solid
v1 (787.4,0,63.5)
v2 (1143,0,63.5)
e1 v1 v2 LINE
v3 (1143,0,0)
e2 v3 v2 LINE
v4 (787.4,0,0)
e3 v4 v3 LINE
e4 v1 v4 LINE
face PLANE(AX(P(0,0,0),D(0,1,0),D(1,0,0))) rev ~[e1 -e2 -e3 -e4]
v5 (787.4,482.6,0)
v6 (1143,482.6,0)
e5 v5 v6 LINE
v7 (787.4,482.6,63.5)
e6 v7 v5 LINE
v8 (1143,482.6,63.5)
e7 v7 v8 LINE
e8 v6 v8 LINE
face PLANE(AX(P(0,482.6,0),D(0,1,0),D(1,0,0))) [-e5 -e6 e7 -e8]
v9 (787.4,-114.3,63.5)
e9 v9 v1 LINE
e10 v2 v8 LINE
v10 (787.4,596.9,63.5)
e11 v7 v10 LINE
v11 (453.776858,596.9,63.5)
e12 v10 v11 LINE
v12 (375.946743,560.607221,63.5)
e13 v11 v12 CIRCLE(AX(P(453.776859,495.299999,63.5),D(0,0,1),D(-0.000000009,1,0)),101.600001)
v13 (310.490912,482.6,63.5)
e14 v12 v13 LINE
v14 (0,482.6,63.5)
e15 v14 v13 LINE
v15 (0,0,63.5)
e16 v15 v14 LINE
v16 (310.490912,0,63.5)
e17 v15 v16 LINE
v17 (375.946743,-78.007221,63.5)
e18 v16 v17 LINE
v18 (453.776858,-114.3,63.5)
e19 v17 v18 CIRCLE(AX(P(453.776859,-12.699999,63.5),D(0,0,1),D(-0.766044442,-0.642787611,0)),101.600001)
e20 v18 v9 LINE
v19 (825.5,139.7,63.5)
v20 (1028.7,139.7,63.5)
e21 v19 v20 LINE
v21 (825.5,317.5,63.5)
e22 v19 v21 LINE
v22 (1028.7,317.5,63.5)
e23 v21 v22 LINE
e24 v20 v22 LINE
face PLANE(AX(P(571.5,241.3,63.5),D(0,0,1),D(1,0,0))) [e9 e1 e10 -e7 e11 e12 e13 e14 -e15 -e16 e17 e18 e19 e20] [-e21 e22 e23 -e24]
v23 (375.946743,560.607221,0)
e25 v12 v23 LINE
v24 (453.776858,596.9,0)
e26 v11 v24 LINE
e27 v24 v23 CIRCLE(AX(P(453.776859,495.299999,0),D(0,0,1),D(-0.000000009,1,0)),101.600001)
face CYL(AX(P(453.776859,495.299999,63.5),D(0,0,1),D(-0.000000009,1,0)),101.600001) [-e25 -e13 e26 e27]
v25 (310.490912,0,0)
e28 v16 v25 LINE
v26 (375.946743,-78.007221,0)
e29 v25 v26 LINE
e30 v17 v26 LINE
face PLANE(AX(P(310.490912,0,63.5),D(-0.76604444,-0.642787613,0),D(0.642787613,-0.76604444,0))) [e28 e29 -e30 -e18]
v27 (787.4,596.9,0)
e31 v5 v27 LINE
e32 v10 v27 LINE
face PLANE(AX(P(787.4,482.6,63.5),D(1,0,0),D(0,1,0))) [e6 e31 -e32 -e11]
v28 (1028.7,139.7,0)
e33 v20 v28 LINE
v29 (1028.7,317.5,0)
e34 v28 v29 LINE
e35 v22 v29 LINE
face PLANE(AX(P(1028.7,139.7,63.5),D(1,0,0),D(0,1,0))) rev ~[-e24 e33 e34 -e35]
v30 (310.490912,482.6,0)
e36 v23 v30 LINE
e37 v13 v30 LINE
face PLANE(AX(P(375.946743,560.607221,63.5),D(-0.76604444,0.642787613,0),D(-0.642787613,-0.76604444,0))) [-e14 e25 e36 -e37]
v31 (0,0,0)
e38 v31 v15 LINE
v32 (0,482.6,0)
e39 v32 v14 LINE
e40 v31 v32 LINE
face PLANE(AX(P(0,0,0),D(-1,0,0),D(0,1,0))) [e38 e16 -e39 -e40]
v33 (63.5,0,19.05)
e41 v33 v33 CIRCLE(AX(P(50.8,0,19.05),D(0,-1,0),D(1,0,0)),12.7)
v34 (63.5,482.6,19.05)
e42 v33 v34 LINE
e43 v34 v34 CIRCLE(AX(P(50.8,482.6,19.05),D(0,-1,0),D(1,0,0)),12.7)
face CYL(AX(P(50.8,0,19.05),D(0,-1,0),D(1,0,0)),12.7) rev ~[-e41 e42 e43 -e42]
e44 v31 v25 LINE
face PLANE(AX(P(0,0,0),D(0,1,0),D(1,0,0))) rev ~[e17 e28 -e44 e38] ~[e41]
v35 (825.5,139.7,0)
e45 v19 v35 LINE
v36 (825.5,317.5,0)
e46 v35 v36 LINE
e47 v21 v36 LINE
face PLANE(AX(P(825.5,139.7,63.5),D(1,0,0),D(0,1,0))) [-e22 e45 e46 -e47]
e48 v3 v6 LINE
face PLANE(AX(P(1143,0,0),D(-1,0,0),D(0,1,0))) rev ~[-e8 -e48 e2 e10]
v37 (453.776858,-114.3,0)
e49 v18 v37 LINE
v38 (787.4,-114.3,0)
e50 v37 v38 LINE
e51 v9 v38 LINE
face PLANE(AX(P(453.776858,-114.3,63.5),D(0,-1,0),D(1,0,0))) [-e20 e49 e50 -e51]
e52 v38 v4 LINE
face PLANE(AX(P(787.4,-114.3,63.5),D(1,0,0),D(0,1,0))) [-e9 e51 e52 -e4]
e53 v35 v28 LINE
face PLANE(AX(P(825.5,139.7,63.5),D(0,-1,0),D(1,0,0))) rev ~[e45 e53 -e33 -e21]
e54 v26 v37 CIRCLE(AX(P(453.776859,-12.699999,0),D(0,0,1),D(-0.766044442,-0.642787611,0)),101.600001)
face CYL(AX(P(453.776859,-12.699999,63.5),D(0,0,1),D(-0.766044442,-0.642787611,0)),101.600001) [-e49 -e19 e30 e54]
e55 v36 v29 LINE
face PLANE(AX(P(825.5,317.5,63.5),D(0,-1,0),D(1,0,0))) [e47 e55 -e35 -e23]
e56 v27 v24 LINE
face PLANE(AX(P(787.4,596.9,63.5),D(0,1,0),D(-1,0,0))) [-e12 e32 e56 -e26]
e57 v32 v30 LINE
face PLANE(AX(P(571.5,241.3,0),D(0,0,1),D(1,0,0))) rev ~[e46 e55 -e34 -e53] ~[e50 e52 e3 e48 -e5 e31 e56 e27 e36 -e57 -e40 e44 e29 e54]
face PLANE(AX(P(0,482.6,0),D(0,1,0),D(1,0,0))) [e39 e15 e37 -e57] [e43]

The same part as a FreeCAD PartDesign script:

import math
import FreeCAD as App
import Part
import Sketcher

V = App.Vector
Q = App.Units.Quantity


def add_polygon(sketch, points):
    """Adds a closed chain of lines whose ends are joined by coincident constraints."""
    first, n = sketch.GeometryCount, len(points)
    for a, b in zip(points, points[1:] + points[:1]):
        sketch.addGeometry(Part.LineSegment(App.Vector(*a, 0), App.Vector(*b, 0)), False)
    for i in range(n):
        sketch.addConstraint(Sketcher.Constraint("Coincident", first + i, 2, first + (i + 1) % n, 1))

doc = App.newDocument("Part")
body = doc.addObject("PartDesign::Body", "Body")

sketch1 = body.newObject("Sketcher::SketchObject", "Sketch")
sketch1.AttachmentSupport = (doc.getObject("XY_Plane"), [""])
sketch1.MapMode = "FlatFace"
add_polygon(sketch1, [(0, 483), (0, 0), (1143, 0), (1143, 483)])
sketch1.addConstraint(Sketcher.Constraint("Vertical", 0))
sketch1.addConstraint(Sketcher.Constraint("Horizontal", 1))
sketch1.addConstraint(Sketcher.Constraint("Vertical", 2))
sketch1.addConstraint(Sketcher.Constraint("Horizontal", 3))
sketch1.addConstraint(Sketcher.Constraint("Coincident", 0, 2, -1, 1))
sketch1.addConstraint(Sketcher.Constraint("DistanceX", 1, 1, 1, 2, Q("45 in")))
sketch1.addConstraint(Sketcher.Constraint("DistanceY", 0, 2, 0, 1, Q("19 in")))
pad1 = body.newObject("PartDesign::Pad", "Pad")
pad1.Profile = sketch1
pad1.Length = Q("2.5 in")

sketch2 = body.newObject("Sketcher::SketchObject", "Sketch001")
sketch2.AttachmentSupport = (doc.getObject("XY_Plane"), [""])
sketch2.MapMode = "FlatFace"
sketch2.AttachmentOffset = App.Placement(V(0, 0, 2.5 * 25.4), App.Rotation())
add_polygon(sketch2, [(826, 318), (826, 140), (1029, 140), (1029, 318)])
sketch2.addConstraint(Sketcher.Constraint("Vertical", 0))
sketch2.addConstraint(Sketcher.Constraint("Horizontal", 1))
sketch2.addConstraint(Sketcher.Constraint("Vertical", 2))
sketch2.addConstraint(Sketcher.Constraint("Horizontal", 3))
sketch2.addConstraint(Sketcher.Constraint("DistanceX", 1, 1, 1, 2, Q("8 in")))
sketch2.addConstraint(Sketcher.Constraint("DistanceY", 0, 2, 0, 1, Q("7 in")))
sketch2.addConstraint(Sketcher.Constraint("DistanceX", -1, 1, 0, 2, Q("32.5 in")))
sketch2.addConstraint(Sketcher.Constraint("DistanceY", -1, 1, 0, 2, Q("5.5 in")))
pocket1 = body.newObject("PartDesign::Pocket", "Pocket")
pocket1.Profile = sketch2
pocket1.Length = Q("2.5 in")

sketch3 = body.newObject("Sketcher::SketchObject", "Sketch002")
sketch3.AttachmentSupport = (doc.getObject("XZ_Plane"), [""])
sketch3.MapMode = "FlatFace"
sketch3.addGeometry(Part.Circle(V(51, 19, 0), V(0, 0, 1), 13), False)
sketch3.addConstraint(Sketcher.Constraint("Diameter", 0, Q("1 in")))
sketch3.addConstraint(Sketcher.Constraint("DistanceX", -1, 1, 0, 3, Q("2 in")))
sketch3.addConstraint(Sketcher.Constraint("DistanceY", -1, 1, 0, 3, Q("0.75 in")))
pocket2 = body.newObject("PartDesign::Pocket", "Pocket001")
pocket2.Profile = sketch3
pocket2.Type = "ThroughAll"

sketch4 = body.newObject("Sketcher::SketchObject", "Sketch003")
sketch4.AttachmentSupport = (doc.getObject("XY_Plane"), [""])
sketch4.MapMode = "FlatFace"
sketch4.AttachmentOffset = App.Placement(V(0, 0, 2.5 * 25.4), App.Rotation())
sketch4.addGeometry(Part.LineSegment(V(310, 483, 0), V(787, 483, 0)), False)
sketch4.addGeometry(Part.LineSegment(V(787, 483, 0), V(787, 597, 0)), False)
sketch4.addGeometry(Part.LineSegment(V(787, 597, 0), V(454, 597, 0)), False)
sketch4.addGeometry(Part.ArcOfCircle(Part.Circle(V(454, 495, 0), V(0, 0, 1), 102), math.radians(90), math.radians(140)), False)
sketch4.addGeometry(Part.LineSegment(V(376, 561, 0), V(310, 483, 0)), False)
sketch4.addGeometry(Part.LineSegment(V(787, -114, 0), V(787, 0, 0)), False)
sketch4.addGeometry(Part.LineSegment(V(787, 0, 0), V(310, 0, 0)), False)
sketch4.addGeometry(Part.LineSegment(V(310, 0, 0), V(376, -78, 0)), False)
sketch4.addGeometry(Part.ArcOfCircle(Part.Circle(V(454, -13, 0), V(0, 0, 1), 102), math.radians(-140), math.radians(-90)), False)
sketch4.addGeometry(Part.LineSegment(V(454, -114, 0), V(787, -114, 0)), False)
sketch4.addConstraint(Sketcher.Constraint("Coincident", 0, 2, 1, 1))
sketch4.addConstraint(Sketcher.Constraint("Coincident", 1, 2, 2, 1))
sketch4.addConstraint(Sketcher.Constraint("Tangent", 2, 2, 3, 1))
sketch4.addConstraint(Sketcher.Constraint("Tangent", 3, 2, 4, 1))
sketch4.addConstraint(Sketcher.Constraint("Coincident", 4, 2, 0, 1))
sketch4.addConstraint(Sketcher.Constraint("Coincident", 5, 2, 6, 1))
sketch4.addConstraint(Sketcher.Constraint("Coincident", 6, 2, 7, 1))
sketch4.addConstraint(Sketcher.Constraint("Tangent", 7, 2, 8, 1))
sketch4.addConstraint(Sketcher.Constraint("Tangent", 8, 2, 9, 1))
sketch4.addConstraint(Sketcher.Constraint("Coincident", 9, 2, 5, 1))
sketch4.addConstraint(Sketcher.Constraint("Horizontal", 0))
sketch4.addConstraint(Sketcher.Constraint("Vertical", 1))
sketch4.addConstraint(Sketcher.Constraint("Horizontal", 2))
sketch4.addConstraint(Sketcher.Constraint("Vertical", 5))
sketch4.addConstraint(Sketcher.Constraint("Horizontal", 6))
sketch4.addConstraint(Sketcher.Constraint("Horizontal", 9))
sketch4.addConstraint(Sketcher.Constraint("Equal", 3, 8))
sketch4.addConstraint(Sketcher.Constraint("PointOnObject", 5, 2, -1))
sketch4.addConstraint(Sketcher.Constraint("Vertical", 3, 3, 8, 3))
sketch4.addConstraint(Sketcher.Constraint("Vertical", 1, 2, 5, 2))
sketch4.addConstraint(Sketcher.Constraint("Vertical", 4, 2, 6, 2))
sketch4.addConstraint(Sketcher.Constraint("Vertical", 3, 2, 7, 2))
sketch4.addConstraint(Sketcher.Constraint("Radius", 3, Q("4 in")))
sketch4.addConstraint(Sketcher.Constraint("DistanceY", 1, 1, 1, 2, Q("4.5 in")))
sketch4.addConstraint(Sketcher.Constraint("DistanceX", -1, 1, 0, 2, Q("31 in")))
sketch4.addConstraint(Sketcher.Constraint("DistanceY", -1, 1, 0, 2, Q("19 in")))
sketch4.addConstraint(Sketcher.Constraint("Angle", 4, Q("-130 deg")))
sketch4.addConstraint(Sketcher.Constraint("DistanceX", 0, 1, 0, 2, Q("476.909088 mm")))
pad2 = body.newObject("PartDesign::Pad", "Pad001")
pad2.Profile = sketch4
pad2.Length = Q("2.5 in")
pad2.Reversed = True

doc.recompute()
